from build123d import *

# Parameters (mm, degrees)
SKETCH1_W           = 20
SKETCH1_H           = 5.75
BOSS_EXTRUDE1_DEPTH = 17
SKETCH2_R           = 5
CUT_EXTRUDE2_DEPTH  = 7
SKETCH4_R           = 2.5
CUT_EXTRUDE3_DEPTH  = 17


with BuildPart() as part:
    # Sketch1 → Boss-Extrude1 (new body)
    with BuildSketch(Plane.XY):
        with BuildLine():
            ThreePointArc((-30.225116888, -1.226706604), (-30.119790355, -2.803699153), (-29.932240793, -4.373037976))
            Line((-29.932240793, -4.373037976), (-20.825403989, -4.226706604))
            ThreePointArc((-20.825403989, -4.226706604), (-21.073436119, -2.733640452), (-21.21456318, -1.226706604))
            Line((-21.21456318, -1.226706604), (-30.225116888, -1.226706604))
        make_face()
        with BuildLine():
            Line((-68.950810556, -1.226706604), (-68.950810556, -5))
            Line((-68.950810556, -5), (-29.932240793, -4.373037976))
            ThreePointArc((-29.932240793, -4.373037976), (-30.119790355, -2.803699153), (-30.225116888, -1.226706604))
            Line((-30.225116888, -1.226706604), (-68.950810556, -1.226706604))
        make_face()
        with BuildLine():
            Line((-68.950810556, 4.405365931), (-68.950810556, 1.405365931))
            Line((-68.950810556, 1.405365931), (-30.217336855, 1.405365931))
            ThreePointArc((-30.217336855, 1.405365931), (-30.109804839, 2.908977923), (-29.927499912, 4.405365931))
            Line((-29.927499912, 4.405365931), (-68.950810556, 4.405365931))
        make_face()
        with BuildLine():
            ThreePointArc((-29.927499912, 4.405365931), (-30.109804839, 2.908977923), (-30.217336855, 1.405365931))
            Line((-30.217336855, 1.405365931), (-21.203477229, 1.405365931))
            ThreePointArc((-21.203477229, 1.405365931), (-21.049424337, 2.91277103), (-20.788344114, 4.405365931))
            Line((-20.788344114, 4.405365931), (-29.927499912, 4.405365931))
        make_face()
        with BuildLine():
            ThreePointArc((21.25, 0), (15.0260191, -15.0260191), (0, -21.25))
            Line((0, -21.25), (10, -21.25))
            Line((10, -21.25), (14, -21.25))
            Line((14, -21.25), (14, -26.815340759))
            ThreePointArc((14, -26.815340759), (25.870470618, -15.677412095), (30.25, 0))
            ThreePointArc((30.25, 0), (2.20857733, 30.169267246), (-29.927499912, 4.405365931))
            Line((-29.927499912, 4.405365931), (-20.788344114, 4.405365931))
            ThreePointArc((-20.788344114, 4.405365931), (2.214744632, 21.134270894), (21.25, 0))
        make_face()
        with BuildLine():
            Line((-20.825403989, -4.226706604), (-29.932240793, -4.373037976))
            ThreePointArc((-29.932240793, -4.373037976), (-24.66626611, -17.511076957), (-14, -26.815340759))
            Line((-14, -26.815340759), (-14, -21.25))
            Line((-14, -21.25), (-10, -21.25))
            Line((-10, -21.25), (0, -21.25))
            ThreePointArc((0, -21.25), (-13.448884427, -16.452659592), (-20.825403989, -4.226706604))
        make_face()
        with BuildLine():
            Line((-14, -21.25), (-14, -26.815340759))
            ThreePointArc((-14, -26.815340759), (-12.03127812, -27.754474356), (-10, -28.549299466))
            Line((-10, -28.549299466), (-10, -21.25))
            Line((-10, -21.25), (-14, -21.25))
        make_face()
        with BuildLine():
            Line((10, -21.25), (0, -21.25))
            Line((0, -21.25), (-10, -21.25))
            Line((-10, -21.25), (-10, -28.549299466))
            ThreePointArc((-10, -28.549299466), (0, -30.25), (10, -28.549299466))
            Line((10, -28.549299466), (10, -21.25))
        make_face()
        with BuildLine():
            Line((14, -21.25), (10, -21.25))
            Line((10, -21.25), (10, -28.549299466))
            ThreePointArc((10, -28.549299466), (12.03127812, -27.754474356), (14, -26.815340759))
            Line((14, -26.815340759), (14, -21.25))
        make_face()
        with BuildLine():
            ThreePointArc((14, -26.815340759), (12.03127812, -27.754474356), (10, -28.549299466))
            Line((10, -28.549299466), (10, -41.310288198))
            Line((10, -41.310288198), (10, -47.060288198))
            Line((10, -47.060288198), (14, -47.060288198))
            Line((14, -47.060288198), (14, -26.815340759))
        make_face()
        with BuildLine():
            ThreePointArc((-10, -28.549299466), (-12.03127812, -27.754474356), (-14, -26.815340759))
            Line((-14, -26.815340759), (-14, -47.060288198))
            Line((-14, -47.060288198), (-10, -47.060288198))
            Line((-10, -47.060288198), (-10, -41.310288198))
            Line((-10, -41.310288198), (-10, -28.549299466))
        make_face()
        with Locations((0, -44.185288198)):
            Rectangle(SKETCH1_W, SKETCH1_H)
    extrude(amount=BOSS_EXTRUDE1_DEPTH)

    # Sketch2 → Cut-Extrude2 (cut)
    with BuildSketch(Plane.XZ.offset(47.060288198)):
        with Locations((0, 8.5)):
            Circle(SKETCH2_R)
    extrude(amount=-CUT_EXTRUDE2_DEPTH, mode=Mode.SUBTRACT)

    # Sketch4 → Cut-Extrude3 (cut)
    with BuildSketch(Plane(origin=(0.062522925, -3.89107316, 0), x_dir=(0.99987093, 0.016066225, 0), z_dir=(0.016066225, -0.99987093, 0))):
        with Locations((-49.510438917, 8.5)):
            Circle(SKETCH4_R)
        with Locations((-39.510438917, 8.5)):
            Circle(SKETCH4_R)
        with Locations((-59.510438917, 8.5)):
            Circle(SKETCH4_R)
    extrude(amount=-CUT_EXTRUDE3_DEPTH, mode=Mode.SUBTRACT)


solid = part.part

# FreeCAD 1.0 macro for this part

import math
import FreeCAD as App
import Part
import Sketcher
from FreeCAD import Vector

doc = App.newDocument("Part")
body = doc.addObject("PartDesign::Body", "Body")

# Sketch on XY plane
sketch1 = body.newObject("Sketcher::SketchObject", "Sketch")
sketch1.AttachmentSupport = (doc.getObject("XY_Plane"), [""])
sketch1.MapMode = "FlatFace"
sketch1.addGeometry(Part.ArcOfCircle(Part.Circle(Vector(0, 0, 0), Vector(0, 0, 1), 21.25), math.radians(-176.690626), math.radians(-168.527134)), False)
sketch1.addGeometry(Part.LineSegment(Vector(-21.214563, -1.226707, 0), Vector(-68.950811, -1.226707, 0)), False)
sketch1.addGeometry(Part.LineSegment(Vector(-68.950811, -1.226707, 0), Vector(-68.950811, -5, 0)), False)
sketch1.addGeometry(Part.LineSegment(Vector(-68.950811, -5, 0), Vector(-29.932241, -4.373038, 0)), False)
sketch1.addGeometry(Part.ArcOfCircle(Part.Circle(Vector(0, 0, 0), Vector(0, 0, 1), 30.25), math.radians(-171.688012), math.radians(-117.568576)), False)
sketch1.addGeometry(Part.LineSegment(Vector(-14, -26.815341, 0), Vector(-14, -47.060288, 0)), False)
sketch1.addGeometry(Part.LineSegment(Vector(-14, -47.060288, 0), Vector(14, -47.060288, 0)), False)
sketch1.addGeometry(Part.LineSegment(Vector(14, -47.060288, 0), Vector(14, -26.815341, 0)), False)
sketch1.addGeometry(Part.ArcOfCircle(Part.Circle(Vector(0, 0, 0), Vector(0, 0, 1), 30.25), math.radians(-62.431424), math.radians(0)), False)
sketch1.addGeometry(Part.ArcOfCircle(Part.Circle(Vector(0, 0, 0), Vector(0, 0, 1), 30.25), math.radians(0), math.radians(171.626125)), False)
sketch1.addGeometry(Part.LineSegment(Vector(-29.9275, 4.405366, 0), Vector(-68.950811, 4.405366, 0)), False)
sketch1.addGeometry(Part.LineSegment(Vector(-68.950811, 4.405366, 0), Vector(-68.950811, 1.405366, 0)), False)
sketch1.addGeometry(Part.LineSegment(Vector(-68.950811, 1.405366, 0), Vector(-21.203477, 1.405366, 0)), False)
sketch1.addGeometry(Part.ArcOfCircle(Part.Circle(Vector(0, 0, 0), Vector(0, 0, 1), 21.25), math.radians(168.035164), math.radians(176.207984)), False)
sketch1.addGeometry(Part.ArcOfCircle(Part.Circle(Vector(0, 0, 0), Vector(0, 0, 1), 21.25), math.radians(0), math.radians(168.035164)), False)
sketch1.addGeometry(Part.ArcOfCircle(Part.Circle(Vector(0, 0, 0), Vector(0, 0, 1), 21.25), math.radians(-90), math.radians(0)), False)
sketch1.addGeometry(Part.ArcOfCircle(Part.Circle(Vector(0, 0, 0), Vector(0, 0, 1), 21.25), math.radians(-168.527134), math.radians(-90)), False)
sketch1.addGeometry(Part.LineSegment(Vector(-10, -41.310288, 0), Vector(-10, -28.549299, 0)), False)
sketch1.addGeometry(Part.ArcOfCircle(Part.Circle(Vector(0, 0, 0), Vector(0, 0, 1), 30.25), math.radians(-109.303893), math.radians(-70.696107)), False)
sketch1.addGeometry(Part.LineSegment(Vector(10, -28.549299, 0), Vector(10, -41.310288, 0)), False)
sketch1.addGeometry(Part.LineSegment(Vector(10, -41.310288, 0), Vector(-10, -41.310288, 0)), False)
sketch1.addConstraint(Sketcher.Constraint("Coincident", 0, 1, 1, 1))
sketch1.addConstraint(Sketcher.Constraint("Coincident", 1, 2, 2, 1))
sketch1.addConstraint(Sketcher.Constraint("Coincident", 2, 2, 3, 1))
sketch1.addConstraint(Sketcher.Constraint("Coincident", 3, 2, 4, 1))
sketch1.addConstraint(Sketcher.Constraint("Coincident", 4, 2, 5, 1))
sketch1.addConstraint(Sketcher.Constraint("Coincident", 5, 2, 6, 1))
sketch1.addConstraint(Sketcher.Constraint("Coincident", 6, 2, 7, 1))
sketch1.addConstraint(Sketcher.Constraint("Coincident", 7, 2, 8, 1))
sketch1.addConstraint(Sketcher.Constraint("Tangent", 8, 2, 9, 1))
sketch1.addConstraint(Sketcher.Constraint("Coincident", 9, 2, 10, 1))
sketch1.addConstraint(Sketcher.Constraint("Coincident", 10, 2, 11, 1))
sketch1.addConstraint(Sketcher.Constraint("Coincident", 11, 2, 12, 1))
sketch1.addConstraint(Sketcher.Constraint("Coincident", 12, 2, 13, 2))
sketch1.addConstraint(Sketcher.Constraint("Tangent", 13, 1, 14, 2))
sketch1.addConstraint(Sketcher.Constraint("Tangent", 14, 1, 15, 2))
sketch1.addConstraint(Sketcher.Constraint("Tangent", 15, 1, 16, 2))
sketch1.addConstraint(Sketcher.Constraint("Tangent", 16, 1, 0, 2))
sketch1.addConstraint(Sketcher.Constraint("Coincident", 17, 2, 18, 1))
sketch1.addConstraint(Sketcher.Constraint("Coincident", 18, 2, 19, 1))
sketch1.addConstraint(Sketcher.Constraint("Coincident", 19, 2, 20, 1))
sketch1.addConstraint(Sketcher.Constraint("Coincident", 20, 2, 17, 1))
sketch1.addConstraint(Sketcher.Constraint("Horizontal", 1))
sketch1.addConstraint(Sketcher.Constraint("Vertical", 2))
sketch1.addConstraint(Sketcher.Constraint("Vertical", 5))
sketch1.addConstraint(Sketcher.Constraint("Horizontal", 6))
sketch1.addConstraint(Sketcher.Constraint("Vertical", 7))
sketch1.addConstraint(Sketcher.Constraint("Horizontal", 10))
sketch1.addConstraint(Sketcher.Constraint("Vertical", 11))
sketch1.addConstraint(Sketcher.Constraint("Horizontal", 12))
sketch1.addConstraint(Sketcher.Constraint("Vertical", 17))
sketch1.addConstraint(Sketcher.Constraint("Vertical", 19))
sketch1.addConstraint(Sketcher.Constraint("Horizontal", 20))
sketch1.addConstraint(Sketcher.Constraint("Coincident", 0, 3, -1, 1))
sketch1.addConstraint(Sketcher.Constraint("Coincident", 4, 3, -1, 1))
sketch1.addConstraint(Sketcher.Constraint("Coincident", 8, 3, -1, 1))
sketch1.addConstraint(Sketcher.Constraint("Coincident", 13, 3, -1, 1))
sketch1.addConstraint(Sketcher.Constraint("Coincident", 15, 3, -1, 1))
sketch1.addConstraint(Sketcher.Constraint("Coincident", 18, 3, -1, 1))
sketch1.addConstraint(Sketcher.Constraint("Equal", 4, 8))
sketch1.addConstraint(Sketcher.Constraint("Equal", 8, 9))
sketch1.addConstraint(Sketcher.Constraint("Equal", 9, 18))
sketch1.addConstraint(Sketcher.Constraint("PointOnObject", 8, 2, -1))
sketch1.addConstraint(Sketcher.Constraint("PointOnObject", 14, 1, -1))
sketch1.addConstraint(Sketcher.Constraint("PointOnObject", 15, 1, -2))
sketch1.addConstraint(Sketcher.Constraint("Horizontal", 4, 2, 7, 2))
sketch1.addConstraint(Sketcher.Constraint("Horizontal", 10, 2, 13, 1))
sketch1.addConstraint(Sketcher.Constraint("Horizontal", 17, 2, 18, 2))
sketch1.addConstraint(Sketcher.Constraint("Vertical", 2, 2, 10, 2))
sketch1.addConstraint(Sketcher.Constraint("DistanceX", 6, 1, 6, 2, 28.0))
sketch1.addConstraint(Sketcher.Constraint("DistanceX", 20, 2, 20, 1, 20.0))
sketch1.addConstraint(Sketcher.Constraint("DistanceY", 11, 2, 11, 1, 3.0))
sketch1.addConstraint(Sketcher.Constraint("Radius", 0, 21.25))
sketch1.addConstraint(Sketcher.Constraint("Radius", 4, 30.25))
sketch1.addConstraint(Sketcher.Constraint("DistanceY", 2, 2, -1, 1, 5.0))
sketch1.addConstraint(Sketcher.Constraint("DistanceY", 16, 1, 0, 1, 3.0))
sketch1.addConstraint(Sketcher.Constraint("DistanceY", 6, 2, 19, 2, 5.75))
sketch1.addConstraint(Sketcher.Constraint("DistanceX", 10, 2, 10, 1, 39.023311))
sketch1.addConstraint(Sketcher.Constraint("DistanceY", 17, 1, 17, 2, 12.760989))
sketch1.addConstraint(Sketcher.Constraint("DistanceX", 9, 2, -1, 1, 29.9275))
sketch1.addConstraint(Sketcher.Constraint("DistanceX", 1, 2, 1, 1, 47.736247))
sketch1.addConstraint(Sketcher.Constraint("DistanceX", 3, 2, -1, 1, 29.932241))
pad1 = body.newObject("PartDesign::Pad", "Pad")
pad1.Profile = sketch1
pad1.Length = 17

# Sketch on XZ plane
sketch2 = body.newObject("Sketcher::SketchObject", "Sketch001")
sketch2.AttachmentSupport = (doc.getObject("XZ_Plane"), [""])
sketch2.MapMode = "FlatFace"
sketch2.AttachmentOffset = App.Placement(Vector(0, 0, 47.060288), App.Rotation())
sketch2.addGeometry(Part.Circle(Vector(0, 8.5, 0), Vector(0, 0, 1), 5), False)
sketch2.addConstraint(Sketcher.Constraint("PointOnObject", 0, 3, -2))
sketch2.addConstraint(Sketcher.Constraint("Diameter", 0, 10.0))
sketch2.addConstraint(Sketcher.Constraint("DistanceY", -1, 1, 0, 3, 8.5))
pocket1 = body.newObject("PartDesign::Pocket", "Pocket")
pocket1.Profile = sketch2
pocket1.Length = 7

# Sketch on an angled plane
sketch3 = body.newObject("Sketcher::SketchObject", "Sketch002")
sketch3.Placement = App.Placement(Vector(0.062523, -3.891073, 0), App.Rotation(Vector(0.99987093, 0.016066225, 0), Vector(0, 0, 1), Vector(0.016066225, -0.99987093, 0), "ZXY"))
sketch3.addGeometry(Part.Circle(Vector(-49.510439, 8.5, 0), Vector(0, 0, 1), 2.5), False)
sketch3.addGeometry(Part.Circle(Vector(-39.510439, 8.5, 0), Vector(0, 0, 1), 2.5), False)
sketch3.addGeometry(Part.Circle(Vector(-59.510439, 8.5, 0), Vector(0, 0, 1), 2.5), False)
sketch3.addConstraint(Sketcher.Constraint("Equal", 0, 1))
sketch3.addConstraint(Sketcher.Constraint("Equal", 1, 2))
sketch3.addConstraint(Sketcher.Constraint("Horizontal", 0, 3, 1, 3))
sketch3.addConstraint(Sketcher.Constraint("Horizontal", 1, 3, 2, 3))
sketch3.addConstraint(Sketcher.Constraint("Diameter", 0, 5.0))
sketch3.addConstraint(Sketcher.Constraint("DistanceX", 0, 3, 1, 3, 10.0))
sketch3.addConstraint(Sketcher.Constraint("DistanceX", 2, 3, 0, 3, 10.0))
sketch3.addConstraint(Sketcher.Constraint("DistanceY", -1, 1, 0, 3, 8.5))
sketch3.addConstraint(Sketcher.Constraint("DistanceX", 0, 3, -1, 1, 49.510439))
pocket2 = body.newObject("PartDesign::Pocket", "Pocket001")
pocket2.Profile = sketch3
pocket2.Length = 17

doc.recompute()
